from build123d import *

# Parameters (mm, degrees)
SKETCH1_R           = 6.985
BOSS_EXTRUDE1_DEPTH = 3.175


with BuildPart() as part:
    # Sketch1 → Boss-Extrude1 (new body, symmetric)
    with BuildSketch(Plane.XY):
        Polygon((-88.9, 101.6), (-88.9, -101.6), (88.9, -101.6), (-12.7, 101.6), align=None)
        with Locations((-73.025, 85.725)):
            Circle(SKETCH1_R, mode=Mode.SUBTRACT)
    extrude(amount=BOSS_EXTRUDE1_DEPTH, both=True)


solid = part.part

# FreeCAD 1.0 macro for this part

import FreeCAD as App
import Part
import Sketcher
Q = App.Units.Quantity

doc = App.newDocument("Part")
body = doc.addObject("PartDesign::Body", "Body")

# Sketch on XY plane
sketch1 = body.newObject("Sketcher::SketchObject", "Sketch")
sketch1.AttachmentSupport = (doc.getObject("XY_Plane"), [""])
sketch1.MapMode = "FlatFace"
sketch1.addGeometry([
    Part.LineSegment(App.Vector(-89, 102, 0), App.Vector(-89, -102, 0)),  # 0
    Part.LineSegment(App.Vector(-89, -102, 0), App.Vector(89, -102, 0)),  # 1
    Part.LineSegment(App.Vector(89, -102, 0), App.Vector(-13, 102, 0)),  # 2
    Part.LineSegment(App.Vector(-13, 102, 0), App.Vector(-89, 102, 0)),  # 3
    Part.Circle(App.Vector(-73, 86, 0), App.Vector(0, 0, 1), 7),  # 4
], False)
sketch1.addConstraint([
    Sketcher.Constraint("Coincident", 0, 2, 1, 1),
    Sketcher.Constraint("Coincident", 1, 2, 2, 1),
    Sketcher.Constraint("Coincident", 2, 2, 3, 1),
    Sketcher.Constraint("Coincident", 3, 2, 0, 1),
    Sketcher.Constraint("Vertical", 0),
    Sketcher.Constraint("Horizontal", 1),
    Sketcher.Constraint("Horizontal", 3),
    Sketcher.Constraint("Symmetric", 1, 2, 3, 2, -1, 1),
    Sketcher.Constraint("Diameter", 4, Q("0.55 in")),
    Sketcher.Constraint("DistanceX", 1, 1, 1, 2, Q("7 in")),
    Sketcher.Constraint("DistanceX", 3, 2, 3, 1, Q("3 in")),
    Sketcher.Constraint("DistanceY", 0, 2, 0, 1, Q("8 in")),
    Sketcher.Constraint("DistanceX", 4, 3, -1, 1, Q("2.875 in")),
    Sketcher.Constraint("DistanceY", -1, 1, 4, 3, Q("3.375 in")),
])
pad1 = body.newObject("PartDesign::Pad", "Pad")
pad1.Profile = sketch1
pad1.Length = Q("0.25 in")
pad1.Midplane = True

doc.recompute()
